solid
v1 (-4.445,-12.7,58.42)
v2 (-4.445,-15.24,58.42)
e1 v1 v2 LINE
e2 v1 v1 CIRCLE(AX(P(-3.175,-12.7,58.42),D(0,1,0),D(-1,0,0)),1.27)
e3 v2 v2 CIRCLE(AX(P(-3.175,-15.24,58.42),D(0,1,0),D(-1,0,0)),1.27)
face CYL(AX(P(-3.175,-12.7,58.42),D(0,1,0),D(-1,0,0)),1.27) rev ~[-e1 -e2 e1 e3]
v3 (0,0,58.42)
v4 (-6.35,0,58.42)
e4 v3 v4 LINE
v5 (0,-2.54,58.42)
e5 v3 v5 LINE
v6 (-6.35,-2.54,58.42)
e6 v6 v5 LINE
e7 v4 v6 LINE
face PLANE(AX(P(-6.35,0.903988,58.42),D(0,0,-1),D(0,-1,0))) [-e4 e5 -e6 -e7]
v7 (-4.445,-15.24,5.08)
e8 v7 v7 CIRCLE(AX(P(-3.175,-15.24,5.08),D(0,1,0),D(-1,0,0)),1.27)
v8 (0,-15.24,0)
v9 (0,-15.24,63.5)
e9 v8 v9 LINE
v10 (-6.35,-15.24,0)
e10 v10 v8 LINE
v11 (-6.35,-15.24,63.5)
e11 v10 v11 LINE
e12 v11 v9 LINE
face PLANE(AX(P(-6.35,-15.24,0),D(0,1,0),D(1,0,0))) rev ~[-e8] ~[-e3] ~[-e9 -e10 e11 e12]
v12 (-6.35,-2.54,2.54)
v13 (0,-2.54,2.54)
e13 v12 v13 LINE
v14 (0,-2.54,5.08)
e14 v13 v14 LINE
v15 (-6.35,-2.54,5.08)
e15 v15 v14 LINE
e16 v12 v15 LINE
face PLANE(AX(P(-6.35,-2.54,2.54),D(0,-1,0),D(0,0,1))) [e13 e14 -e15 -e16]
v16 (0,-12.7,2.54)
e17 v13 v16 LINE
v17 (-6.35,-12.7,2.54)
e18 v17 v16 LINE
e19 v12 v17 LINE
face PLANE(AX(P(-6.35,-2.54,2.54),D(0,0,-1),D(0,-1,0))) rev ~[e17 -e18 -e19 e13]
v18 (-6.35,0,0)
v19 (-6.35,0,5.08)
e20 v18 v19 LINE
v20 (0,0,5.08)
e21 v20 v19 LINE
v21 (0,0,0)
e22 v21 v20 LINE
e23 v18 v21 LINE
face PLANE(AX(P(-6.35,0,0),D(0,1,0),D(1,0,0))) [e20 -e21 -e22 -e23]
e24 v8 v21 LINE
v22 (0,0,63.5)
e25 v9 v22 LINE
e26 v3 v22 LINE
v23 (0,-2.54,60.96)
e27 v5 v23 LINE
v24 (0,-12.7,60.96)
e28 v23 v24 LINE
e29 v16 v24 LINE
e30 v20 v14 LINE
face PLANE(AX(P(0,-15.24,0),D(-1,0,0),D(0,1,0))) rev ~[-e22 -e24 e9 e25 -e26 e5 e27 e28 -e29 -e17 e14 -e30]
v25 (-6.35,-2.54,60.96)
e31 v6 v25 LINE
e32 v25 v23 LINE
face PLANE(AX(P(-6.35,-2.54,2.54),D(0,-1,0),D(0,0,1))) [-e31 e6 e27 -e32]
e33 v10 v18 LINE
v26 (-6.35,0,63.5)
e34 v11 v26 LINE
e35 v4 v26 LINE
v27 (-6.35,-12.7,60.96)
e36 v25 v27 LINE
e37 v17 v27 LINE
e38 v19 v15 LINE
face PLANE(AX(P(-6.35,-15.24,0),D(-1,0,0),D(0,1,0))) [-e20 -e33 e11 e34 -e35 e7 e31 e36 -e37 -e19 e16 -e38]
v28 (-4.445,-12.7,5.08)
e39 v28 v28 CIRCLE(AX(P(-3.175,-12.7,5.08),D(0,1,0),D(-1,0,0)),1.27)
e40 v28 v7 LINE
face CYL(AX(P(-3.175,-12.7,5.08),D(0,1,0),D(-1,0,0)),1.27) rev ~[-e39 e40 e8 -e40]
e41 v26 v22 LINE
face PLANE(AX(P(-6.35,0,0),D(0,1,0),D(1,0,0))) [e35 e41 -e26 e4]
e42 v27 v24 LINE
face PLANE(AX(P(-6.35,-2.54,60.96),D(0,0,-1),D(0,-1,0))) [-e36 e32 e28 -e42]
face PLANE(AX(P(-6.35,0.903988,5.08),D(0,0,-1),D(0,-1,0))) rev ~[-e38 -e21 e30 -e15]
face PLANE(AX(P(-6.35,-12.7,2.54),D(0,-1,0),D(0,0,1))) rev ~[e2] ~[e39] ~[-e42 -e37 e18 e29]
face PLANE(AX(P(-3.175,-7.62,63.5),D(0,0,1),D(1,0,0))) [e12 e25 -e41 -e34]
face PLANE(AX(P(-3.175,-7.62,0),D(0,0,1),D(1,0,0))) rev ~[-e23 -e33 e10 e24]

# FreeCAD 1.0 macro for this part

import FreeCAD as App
import Part
import Sketcher

V = App.Vector
Q = App.Units.Quantity


def add_polygon(sketch, points):
    """Adds a closed chain of lines whose ends are joined by coincident constraints."""
    first, n = sketch.GeometryCount, len(points)
    for a, b in zip(points, points[1:] + points[:1]):
        sketch.addGeometry(Part.LineSegment(App.Vector(*a, 0), App.Vector(*b, 0)), False)
    for i in range(n):
        sketch.addConstraint(Sketcher.Constraint("Coincident", first + i, 2, first + (i + 1) % n, 1))

doc = App.newDocument("Part")
body = doc.addObject("PartDesign::Body", "Body")

# Sketch on XY plane
sketch1 = body.newObject("Sketcher::SketchObject", "Sketch")
sketch1.AttachmentSupport = (doc.getObject("XY_Plane"), [""])
sketch1.MapMode = "FlatFace"
add_polygon(sketch1, [(-6, 0), (-6, -15), (0, -15), (0, 0)])  # lines 0-3
sketch1.addConstraint([
    Sketcher.Constraint("Vertical", 0),
    Sketcher.Constraint("Horizontal", 1),
    Sketcher.Constraint("Vertical", 2),
    Sketcher.Constraint("Horizontal", 3),
    Sketcher.Constraint("Coincident", 2, 2, -1, 1),
    Sketcher.Constraint("DistanceY", 0, 2, 0, 1, Q("0.6 in")),
    Sketcher.Constraint("DistanceX", 1, 1, 1, 2, Q("0.25 in")),
])
pad1 = body.newObject("PartDesign::Pad", "Pad")
pad1.Profile = sketch1
pad1.Length = Q("2.5 in")

# Sketch on YZ plane
sketch2 = body.newObject("Sketcher::SketchObject", "Sketch001")
sketch2.AttachmentSupport = (doc.getObject("YZ_Plane"), [""])
sketch2.MapMode = "FlatFace"
sketch2.AttachmentOffset = App.Placement(V(0, 0, -0.25 * 25.4), App.Rotation())
add_polygon(sketch2, [(-3, 61), (-3, 3), (-13, 3), (-13, 61)])  # lines 0-3
sketch2.addConstraint([
    Sketcher.Constraint("Vertical", 0),
    Sketcher.Constraint("Horizontal", 1),
    Sketcher.Constraint("Vertical", 2),
    Sketcher.Constraint("Horizontal", 3),
    Sketcher.Constraint("DistanceX", 1, 2, 1, 1, Q("0.4 in")),
    Sketcher.Constraint("DistanceY", 0, 2, 0, 1, Q("2.3 in")),
    Sketcher.Constraint("DistanceX", 0, 2, -1, 1, Q("0.1 in")),
    Sketcher.Constraint("DistanceY", -1, 1, 0, 2, Q("0.1 in")),
])
pocket1 = body.newObject("PartDesign::Pocket", "Pocket")
pocket1.Profile = sketch2
pocket1.Length = Q("1 in")
pocket1.Reversed = True

# Sketch on YZ plane
sketch3 = body.newObject("Sketcher::SketchObject", "Sketch002")
sketch3.AttachmentSupport = (doc.getObject("YZ_Plane"), [""])
sketch3.MapMode = "FlatFace"
sketch3.AttachmentOffset = App.Placement(V(0, 0, -0.25 * 25.4), App.Rotation())
add_polygon(sketch3, [(1, 58), (1, 5), (-4, 5), (-4, 58)])  # lines 0-3
sketch3.addConstraint([
    Sketcher.Constraint("Vertical", 0),
    Sketcher.Constraint("Horizontal", 1),
    Sketcher.Constraint("Vertical", 2),
    Sketcher.Constraint("Horizontal", 3),
    Sketcher.Constraint("DistanceX", 1, 2, 1, 1, Q("0.2 in")),
    Sketcher.Constraint("DistanceY", 0, 2, 0, 1, Q("2.1 in")),
    Sketcher.Constraint("DistanceY", -1, 1, 0, 2, Q("0.2 in")),
    Sketcher.Constraint("DistanceX", -1, 1, 0, 2, 0.903988),
])
pocket2 = body.newObject("PartDesign::Pocket", "Pocket001")
pocket2.Profile = sketch3
pocket2.Length = Q("1 in")
pocket2.Reversed = True

# Sketch on XZ plane
sketch4 = body.newObject("Sketcher::SketchObject", "Sketch003")
sketch4.AttachmentSupport = (doc.getObject("XZ_Plane"), [""])
sketch4.MapMode = "FlatFace"
sketch4.AttachmentOffset = App.Placement(V(0, 0, 0.5 * 25.4), App.Rotation())
sketch4.addGeometry([
    Part.Circle(V(-3.2, 5.1, 0), V(0, 0, 1), 1.3),
    Part.Circle(V(-3.2, 58.4, 0), V(0, 0, 1), 1.3),
], False)
sketch4.addConstraint([
    Sketcher.Constraint("Equal", 0, 1),
    Sketcher.Constraint("Vertical", 0, 3, 1, 3),
    Sketcher.Constraint("Diameter", 0, Q("0.1 in")),
    Sketcher.Constraint("DistanceY", -1, 1, 0, 3, Q("0.2 in")),
    Sketcher.Constraint("DistanceY", -1, 1, 1, 3, Q("2.3 in")),
    Sketcher.Constraint("DistanceX", 0, 3, -1, 1, Q("0.125 in")),
])
pocket3 = body.newObject("PartDesign::Pocket", "Pocket002")
pocket3.Profile = sketch4
pocket3.Length = Q("1 in")
pocket3.Reversed = True

doc.recompute()
